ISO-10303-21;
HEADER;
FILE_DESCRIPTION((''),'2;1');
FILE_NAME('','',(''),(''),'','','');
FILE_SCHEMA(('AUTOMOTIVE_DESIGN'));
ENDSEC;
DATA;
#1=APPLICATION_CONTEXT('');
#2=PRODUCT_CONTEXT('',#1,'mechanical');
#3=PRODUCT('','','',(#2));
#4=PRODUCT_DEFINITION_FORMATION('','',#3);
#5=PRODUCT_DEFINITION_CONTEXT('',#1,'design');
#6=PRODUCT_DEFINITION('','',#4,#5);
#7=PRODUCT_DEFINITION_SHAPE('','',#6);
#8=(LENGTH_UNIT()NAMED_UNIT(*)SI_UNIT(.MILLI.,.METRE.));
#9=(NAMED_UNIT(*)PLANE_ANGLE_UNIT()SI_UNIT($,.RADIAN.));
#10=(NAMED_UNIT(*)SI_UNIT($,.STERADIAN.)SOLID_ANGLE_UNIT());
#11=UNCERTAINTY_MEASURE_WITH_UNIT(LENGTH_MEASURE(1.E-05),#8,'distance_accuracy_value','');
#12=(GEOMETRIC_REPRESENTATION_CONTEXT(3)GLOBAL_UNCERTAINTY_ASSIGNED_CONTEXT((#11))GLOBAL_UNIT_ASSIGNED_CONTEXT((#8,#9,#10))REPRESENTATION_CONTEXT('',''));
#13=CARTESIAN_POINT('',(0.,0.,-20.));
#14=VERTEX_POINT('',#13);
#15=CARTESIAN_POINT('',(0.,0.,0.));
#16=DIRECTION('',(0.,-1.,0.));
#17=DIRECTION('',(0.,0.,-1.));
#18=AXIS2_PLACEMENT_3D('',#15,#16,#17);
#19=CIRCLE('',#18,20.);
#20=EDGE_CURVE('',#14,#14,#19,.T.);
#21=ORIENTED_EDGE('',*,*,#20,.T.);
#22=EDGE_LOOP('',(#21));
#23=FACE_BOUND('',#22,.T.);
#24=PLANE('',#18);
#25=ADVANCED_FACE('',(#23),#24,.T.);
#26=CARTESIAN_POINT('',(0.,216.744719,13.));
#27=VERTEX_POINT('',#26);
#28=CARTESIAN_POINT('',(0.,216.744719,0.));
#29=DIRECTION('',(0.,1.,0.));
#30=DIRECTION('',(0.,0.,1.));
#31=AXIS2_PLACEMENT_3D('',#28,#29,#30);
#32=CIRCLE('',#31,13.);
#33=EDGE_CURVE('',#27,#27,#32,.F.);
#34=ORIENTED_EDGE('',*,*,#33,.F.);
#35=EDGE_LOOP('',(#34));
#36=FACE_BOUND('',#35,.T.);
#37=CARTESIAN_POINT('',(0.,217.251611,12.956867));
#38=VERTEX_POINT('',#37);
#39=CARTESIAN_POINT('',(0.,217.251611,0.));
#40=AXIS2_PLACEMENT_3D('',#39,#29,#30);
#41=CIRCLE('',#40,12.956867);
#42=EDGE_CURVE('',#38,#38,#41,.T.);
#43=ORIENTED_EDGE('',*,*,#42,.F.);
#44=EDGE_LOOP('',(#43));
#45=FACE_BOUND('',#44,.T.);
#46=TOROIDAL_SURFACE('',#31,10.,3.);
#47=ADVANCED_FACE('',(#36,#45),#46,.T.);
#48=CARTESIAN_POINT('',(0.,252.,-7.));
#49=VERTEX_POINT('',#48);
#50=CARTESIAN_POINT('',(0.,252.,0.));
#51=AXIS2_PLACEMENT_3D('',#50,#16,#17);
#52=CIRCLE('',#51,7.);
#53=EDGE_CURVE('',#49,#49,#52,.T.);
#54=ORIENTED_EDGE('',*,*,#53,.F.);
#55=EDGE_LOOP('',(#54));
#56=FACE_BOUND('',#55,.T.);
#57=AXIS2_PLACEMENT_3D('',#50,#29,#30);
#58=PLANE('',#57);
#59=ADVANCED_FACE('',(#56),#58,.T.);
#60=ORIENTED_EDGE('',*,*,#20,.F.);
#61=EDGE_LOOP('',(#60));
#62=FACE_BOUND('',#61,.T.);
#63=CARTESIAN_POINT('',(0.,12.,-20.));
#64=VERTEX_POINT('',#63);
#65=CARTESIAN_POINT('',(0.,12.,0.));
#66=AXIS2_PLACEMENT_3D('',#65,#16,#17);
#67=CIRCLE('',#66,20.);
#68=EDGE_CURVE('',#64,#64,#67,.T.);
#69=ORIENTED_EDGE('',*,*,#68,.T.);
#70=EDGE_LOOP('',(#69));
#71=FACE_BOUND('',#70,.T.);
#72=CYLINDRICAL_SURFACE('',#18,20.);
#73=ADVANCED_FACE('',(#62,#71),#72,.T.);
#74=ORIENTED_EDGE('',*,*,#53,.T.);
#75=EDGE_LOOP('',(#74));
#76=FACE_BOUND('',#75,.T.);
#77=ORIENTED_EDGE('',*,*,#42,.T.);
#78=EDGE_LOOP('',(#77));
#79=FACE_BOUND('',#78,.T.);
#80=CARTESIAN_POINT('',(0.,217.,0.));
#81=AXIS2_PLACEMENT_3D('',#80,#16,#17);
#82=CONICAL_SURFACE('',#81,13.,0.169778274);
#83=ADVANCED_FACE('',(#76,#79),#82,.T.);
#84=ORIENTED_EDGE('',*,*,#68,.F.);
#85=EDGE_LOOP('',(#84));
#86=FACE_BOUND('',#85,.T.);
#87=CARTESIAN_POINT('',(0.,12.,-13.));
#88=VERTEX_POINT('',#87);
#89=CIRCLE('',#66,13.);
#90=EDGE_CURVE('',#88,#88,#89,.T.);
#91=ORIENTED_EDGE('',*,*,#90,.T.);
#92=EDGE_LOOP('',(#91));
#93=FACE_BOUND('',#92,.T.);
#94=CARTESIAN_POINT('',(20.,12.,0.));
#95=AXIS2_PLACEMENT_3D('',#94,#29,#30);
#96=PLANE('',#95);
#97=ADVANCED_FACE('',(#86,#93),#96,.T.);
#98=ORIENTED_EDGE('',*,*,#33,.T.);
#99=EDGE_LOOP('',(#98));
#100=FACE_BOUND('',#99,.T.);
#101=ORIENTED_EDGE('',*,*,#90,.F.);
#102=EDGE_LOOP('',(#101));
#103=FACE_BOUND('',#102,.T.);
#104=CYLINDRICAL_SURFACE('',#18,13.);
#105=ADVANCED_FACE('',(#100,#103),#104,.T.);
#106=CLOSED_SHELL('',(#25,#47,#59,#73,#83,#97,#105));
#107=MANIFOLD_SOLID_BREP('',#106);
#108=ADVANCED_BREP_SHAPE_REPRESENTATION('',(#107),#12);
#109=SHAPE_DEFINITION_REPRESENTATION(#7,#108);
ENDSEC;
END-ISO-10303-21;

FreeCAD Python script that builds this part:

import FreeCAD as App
import Part
import Sketcher

V = App.Vector


def edges_at(feature, points):
    """Names of the edges that pass closest to the given points."""
    edges = feature.Shape.Edges
    near = lambda p: min(range(len(edges)), key=lambda i: edges[i].distToShape(Part.Vertex(*p))[0])
    return sorted({f"Edge{near(p) + 1}" for p in points})

doc = App.newDocument("Part")
body = doc.addObject("PartDesign::Body", "Body")

# Sketch on XY plane
sketch1 = doc.addObject("Sketcher::SketchObject", "Sketch")
body.addObject(sketch1)
sketch1.AttachmentSupport = (doc.XY_Plane, [""])
sketch1.MapMode = "FlatFace"
sketch1.addGeometry([
    Part.LineSegment(V(0, 0, 0), V(20, 0, 0)),  # 0
    Part.LineSegment(V(20, 0, 0), V(20, 12, 0)),  # 1
    Part.LineSegment(V(20, 12, 0), V(13, 12, 0)),  # 2
    Part.LineSegment(V(13, 12, 0), V(13, 217, 0)),  # 3
    Part.LineSegment(V(13, 217, 0), V(7, 252, 0)),  # 4
    Part.LineSegment(V(7, 252, 0), V(0, 252, 0)),  # 5
    Part.LineSegment(V(0, 252, 0), V(0, 0, 0)),  # 6
], False)
sketch1.addConstraint([
    Sketcher.Constraint("Coincident", 0, 2, 1, 1),
    Sketcher.Constraint("Coincident", 1, 2, 2, 1),
    Sketcher.Constraint("Coincident", 2, 2, 3, 1),
    Sketcher.Constraint("Coincident", 3, 2, 4, 1),
    Sketcher.Constraint("Coincident", 4, 2, 5, 1),
    Sketcher.Constraint("Coincident", 5, 2, 6, 1),
    Sketcher.Constraint("Coincident", 6, 2, 0, 1),
    Sketcher.Constraint("Horizontal", 0),
    Sketcher.Constraint("Vertical", 1),
    Sketcher.Constraint("Horizontal", 2),
    Sketcher.Constraint("Vertical", 3),
    Sketcher.Constraint("Horizontal", 5),
    Sketcher.Constraint("Vertical", 6),
    Sketcher.Constraint("Coincident", 6, 2, -1, 1),
    Sketcher.Constraint("Equal", 2, 5),
    Sketcher.Constraint("DistanceX", 0, 1, 0, 2, 20.0),
    Sketcher.Constraint("DistanceX", 2, 2, 2, 1, 7.0),
    Sketcher.Constraint("DistanceY", 1, 1, 1, 2, 12.0),
    Sketcher.Constraint("DistanceY", 3, 1, 3, 2, 205.0),
    Sketcher.Constraint("DistanceY", 6, 2, 6, 1, 252.0),
])
revolution = doc.addObject("PartDesign::Revolution", "Revolution")
body.addObject(revolution)
revolution.Profile = sketch1
revolution.ReferenceAxis = (sketch1, ["V_Axis"])
revolution.Angle = 360
doc.recompute()

fillet = doc.addObject("PartDesign::Fillet", "Fillet")
body.addObject(fillet)
fillet.Base = (revolution, edges_at(revolution, [(0, 217, 13)]))
fillet.Radius = 3

doc.recompute()
